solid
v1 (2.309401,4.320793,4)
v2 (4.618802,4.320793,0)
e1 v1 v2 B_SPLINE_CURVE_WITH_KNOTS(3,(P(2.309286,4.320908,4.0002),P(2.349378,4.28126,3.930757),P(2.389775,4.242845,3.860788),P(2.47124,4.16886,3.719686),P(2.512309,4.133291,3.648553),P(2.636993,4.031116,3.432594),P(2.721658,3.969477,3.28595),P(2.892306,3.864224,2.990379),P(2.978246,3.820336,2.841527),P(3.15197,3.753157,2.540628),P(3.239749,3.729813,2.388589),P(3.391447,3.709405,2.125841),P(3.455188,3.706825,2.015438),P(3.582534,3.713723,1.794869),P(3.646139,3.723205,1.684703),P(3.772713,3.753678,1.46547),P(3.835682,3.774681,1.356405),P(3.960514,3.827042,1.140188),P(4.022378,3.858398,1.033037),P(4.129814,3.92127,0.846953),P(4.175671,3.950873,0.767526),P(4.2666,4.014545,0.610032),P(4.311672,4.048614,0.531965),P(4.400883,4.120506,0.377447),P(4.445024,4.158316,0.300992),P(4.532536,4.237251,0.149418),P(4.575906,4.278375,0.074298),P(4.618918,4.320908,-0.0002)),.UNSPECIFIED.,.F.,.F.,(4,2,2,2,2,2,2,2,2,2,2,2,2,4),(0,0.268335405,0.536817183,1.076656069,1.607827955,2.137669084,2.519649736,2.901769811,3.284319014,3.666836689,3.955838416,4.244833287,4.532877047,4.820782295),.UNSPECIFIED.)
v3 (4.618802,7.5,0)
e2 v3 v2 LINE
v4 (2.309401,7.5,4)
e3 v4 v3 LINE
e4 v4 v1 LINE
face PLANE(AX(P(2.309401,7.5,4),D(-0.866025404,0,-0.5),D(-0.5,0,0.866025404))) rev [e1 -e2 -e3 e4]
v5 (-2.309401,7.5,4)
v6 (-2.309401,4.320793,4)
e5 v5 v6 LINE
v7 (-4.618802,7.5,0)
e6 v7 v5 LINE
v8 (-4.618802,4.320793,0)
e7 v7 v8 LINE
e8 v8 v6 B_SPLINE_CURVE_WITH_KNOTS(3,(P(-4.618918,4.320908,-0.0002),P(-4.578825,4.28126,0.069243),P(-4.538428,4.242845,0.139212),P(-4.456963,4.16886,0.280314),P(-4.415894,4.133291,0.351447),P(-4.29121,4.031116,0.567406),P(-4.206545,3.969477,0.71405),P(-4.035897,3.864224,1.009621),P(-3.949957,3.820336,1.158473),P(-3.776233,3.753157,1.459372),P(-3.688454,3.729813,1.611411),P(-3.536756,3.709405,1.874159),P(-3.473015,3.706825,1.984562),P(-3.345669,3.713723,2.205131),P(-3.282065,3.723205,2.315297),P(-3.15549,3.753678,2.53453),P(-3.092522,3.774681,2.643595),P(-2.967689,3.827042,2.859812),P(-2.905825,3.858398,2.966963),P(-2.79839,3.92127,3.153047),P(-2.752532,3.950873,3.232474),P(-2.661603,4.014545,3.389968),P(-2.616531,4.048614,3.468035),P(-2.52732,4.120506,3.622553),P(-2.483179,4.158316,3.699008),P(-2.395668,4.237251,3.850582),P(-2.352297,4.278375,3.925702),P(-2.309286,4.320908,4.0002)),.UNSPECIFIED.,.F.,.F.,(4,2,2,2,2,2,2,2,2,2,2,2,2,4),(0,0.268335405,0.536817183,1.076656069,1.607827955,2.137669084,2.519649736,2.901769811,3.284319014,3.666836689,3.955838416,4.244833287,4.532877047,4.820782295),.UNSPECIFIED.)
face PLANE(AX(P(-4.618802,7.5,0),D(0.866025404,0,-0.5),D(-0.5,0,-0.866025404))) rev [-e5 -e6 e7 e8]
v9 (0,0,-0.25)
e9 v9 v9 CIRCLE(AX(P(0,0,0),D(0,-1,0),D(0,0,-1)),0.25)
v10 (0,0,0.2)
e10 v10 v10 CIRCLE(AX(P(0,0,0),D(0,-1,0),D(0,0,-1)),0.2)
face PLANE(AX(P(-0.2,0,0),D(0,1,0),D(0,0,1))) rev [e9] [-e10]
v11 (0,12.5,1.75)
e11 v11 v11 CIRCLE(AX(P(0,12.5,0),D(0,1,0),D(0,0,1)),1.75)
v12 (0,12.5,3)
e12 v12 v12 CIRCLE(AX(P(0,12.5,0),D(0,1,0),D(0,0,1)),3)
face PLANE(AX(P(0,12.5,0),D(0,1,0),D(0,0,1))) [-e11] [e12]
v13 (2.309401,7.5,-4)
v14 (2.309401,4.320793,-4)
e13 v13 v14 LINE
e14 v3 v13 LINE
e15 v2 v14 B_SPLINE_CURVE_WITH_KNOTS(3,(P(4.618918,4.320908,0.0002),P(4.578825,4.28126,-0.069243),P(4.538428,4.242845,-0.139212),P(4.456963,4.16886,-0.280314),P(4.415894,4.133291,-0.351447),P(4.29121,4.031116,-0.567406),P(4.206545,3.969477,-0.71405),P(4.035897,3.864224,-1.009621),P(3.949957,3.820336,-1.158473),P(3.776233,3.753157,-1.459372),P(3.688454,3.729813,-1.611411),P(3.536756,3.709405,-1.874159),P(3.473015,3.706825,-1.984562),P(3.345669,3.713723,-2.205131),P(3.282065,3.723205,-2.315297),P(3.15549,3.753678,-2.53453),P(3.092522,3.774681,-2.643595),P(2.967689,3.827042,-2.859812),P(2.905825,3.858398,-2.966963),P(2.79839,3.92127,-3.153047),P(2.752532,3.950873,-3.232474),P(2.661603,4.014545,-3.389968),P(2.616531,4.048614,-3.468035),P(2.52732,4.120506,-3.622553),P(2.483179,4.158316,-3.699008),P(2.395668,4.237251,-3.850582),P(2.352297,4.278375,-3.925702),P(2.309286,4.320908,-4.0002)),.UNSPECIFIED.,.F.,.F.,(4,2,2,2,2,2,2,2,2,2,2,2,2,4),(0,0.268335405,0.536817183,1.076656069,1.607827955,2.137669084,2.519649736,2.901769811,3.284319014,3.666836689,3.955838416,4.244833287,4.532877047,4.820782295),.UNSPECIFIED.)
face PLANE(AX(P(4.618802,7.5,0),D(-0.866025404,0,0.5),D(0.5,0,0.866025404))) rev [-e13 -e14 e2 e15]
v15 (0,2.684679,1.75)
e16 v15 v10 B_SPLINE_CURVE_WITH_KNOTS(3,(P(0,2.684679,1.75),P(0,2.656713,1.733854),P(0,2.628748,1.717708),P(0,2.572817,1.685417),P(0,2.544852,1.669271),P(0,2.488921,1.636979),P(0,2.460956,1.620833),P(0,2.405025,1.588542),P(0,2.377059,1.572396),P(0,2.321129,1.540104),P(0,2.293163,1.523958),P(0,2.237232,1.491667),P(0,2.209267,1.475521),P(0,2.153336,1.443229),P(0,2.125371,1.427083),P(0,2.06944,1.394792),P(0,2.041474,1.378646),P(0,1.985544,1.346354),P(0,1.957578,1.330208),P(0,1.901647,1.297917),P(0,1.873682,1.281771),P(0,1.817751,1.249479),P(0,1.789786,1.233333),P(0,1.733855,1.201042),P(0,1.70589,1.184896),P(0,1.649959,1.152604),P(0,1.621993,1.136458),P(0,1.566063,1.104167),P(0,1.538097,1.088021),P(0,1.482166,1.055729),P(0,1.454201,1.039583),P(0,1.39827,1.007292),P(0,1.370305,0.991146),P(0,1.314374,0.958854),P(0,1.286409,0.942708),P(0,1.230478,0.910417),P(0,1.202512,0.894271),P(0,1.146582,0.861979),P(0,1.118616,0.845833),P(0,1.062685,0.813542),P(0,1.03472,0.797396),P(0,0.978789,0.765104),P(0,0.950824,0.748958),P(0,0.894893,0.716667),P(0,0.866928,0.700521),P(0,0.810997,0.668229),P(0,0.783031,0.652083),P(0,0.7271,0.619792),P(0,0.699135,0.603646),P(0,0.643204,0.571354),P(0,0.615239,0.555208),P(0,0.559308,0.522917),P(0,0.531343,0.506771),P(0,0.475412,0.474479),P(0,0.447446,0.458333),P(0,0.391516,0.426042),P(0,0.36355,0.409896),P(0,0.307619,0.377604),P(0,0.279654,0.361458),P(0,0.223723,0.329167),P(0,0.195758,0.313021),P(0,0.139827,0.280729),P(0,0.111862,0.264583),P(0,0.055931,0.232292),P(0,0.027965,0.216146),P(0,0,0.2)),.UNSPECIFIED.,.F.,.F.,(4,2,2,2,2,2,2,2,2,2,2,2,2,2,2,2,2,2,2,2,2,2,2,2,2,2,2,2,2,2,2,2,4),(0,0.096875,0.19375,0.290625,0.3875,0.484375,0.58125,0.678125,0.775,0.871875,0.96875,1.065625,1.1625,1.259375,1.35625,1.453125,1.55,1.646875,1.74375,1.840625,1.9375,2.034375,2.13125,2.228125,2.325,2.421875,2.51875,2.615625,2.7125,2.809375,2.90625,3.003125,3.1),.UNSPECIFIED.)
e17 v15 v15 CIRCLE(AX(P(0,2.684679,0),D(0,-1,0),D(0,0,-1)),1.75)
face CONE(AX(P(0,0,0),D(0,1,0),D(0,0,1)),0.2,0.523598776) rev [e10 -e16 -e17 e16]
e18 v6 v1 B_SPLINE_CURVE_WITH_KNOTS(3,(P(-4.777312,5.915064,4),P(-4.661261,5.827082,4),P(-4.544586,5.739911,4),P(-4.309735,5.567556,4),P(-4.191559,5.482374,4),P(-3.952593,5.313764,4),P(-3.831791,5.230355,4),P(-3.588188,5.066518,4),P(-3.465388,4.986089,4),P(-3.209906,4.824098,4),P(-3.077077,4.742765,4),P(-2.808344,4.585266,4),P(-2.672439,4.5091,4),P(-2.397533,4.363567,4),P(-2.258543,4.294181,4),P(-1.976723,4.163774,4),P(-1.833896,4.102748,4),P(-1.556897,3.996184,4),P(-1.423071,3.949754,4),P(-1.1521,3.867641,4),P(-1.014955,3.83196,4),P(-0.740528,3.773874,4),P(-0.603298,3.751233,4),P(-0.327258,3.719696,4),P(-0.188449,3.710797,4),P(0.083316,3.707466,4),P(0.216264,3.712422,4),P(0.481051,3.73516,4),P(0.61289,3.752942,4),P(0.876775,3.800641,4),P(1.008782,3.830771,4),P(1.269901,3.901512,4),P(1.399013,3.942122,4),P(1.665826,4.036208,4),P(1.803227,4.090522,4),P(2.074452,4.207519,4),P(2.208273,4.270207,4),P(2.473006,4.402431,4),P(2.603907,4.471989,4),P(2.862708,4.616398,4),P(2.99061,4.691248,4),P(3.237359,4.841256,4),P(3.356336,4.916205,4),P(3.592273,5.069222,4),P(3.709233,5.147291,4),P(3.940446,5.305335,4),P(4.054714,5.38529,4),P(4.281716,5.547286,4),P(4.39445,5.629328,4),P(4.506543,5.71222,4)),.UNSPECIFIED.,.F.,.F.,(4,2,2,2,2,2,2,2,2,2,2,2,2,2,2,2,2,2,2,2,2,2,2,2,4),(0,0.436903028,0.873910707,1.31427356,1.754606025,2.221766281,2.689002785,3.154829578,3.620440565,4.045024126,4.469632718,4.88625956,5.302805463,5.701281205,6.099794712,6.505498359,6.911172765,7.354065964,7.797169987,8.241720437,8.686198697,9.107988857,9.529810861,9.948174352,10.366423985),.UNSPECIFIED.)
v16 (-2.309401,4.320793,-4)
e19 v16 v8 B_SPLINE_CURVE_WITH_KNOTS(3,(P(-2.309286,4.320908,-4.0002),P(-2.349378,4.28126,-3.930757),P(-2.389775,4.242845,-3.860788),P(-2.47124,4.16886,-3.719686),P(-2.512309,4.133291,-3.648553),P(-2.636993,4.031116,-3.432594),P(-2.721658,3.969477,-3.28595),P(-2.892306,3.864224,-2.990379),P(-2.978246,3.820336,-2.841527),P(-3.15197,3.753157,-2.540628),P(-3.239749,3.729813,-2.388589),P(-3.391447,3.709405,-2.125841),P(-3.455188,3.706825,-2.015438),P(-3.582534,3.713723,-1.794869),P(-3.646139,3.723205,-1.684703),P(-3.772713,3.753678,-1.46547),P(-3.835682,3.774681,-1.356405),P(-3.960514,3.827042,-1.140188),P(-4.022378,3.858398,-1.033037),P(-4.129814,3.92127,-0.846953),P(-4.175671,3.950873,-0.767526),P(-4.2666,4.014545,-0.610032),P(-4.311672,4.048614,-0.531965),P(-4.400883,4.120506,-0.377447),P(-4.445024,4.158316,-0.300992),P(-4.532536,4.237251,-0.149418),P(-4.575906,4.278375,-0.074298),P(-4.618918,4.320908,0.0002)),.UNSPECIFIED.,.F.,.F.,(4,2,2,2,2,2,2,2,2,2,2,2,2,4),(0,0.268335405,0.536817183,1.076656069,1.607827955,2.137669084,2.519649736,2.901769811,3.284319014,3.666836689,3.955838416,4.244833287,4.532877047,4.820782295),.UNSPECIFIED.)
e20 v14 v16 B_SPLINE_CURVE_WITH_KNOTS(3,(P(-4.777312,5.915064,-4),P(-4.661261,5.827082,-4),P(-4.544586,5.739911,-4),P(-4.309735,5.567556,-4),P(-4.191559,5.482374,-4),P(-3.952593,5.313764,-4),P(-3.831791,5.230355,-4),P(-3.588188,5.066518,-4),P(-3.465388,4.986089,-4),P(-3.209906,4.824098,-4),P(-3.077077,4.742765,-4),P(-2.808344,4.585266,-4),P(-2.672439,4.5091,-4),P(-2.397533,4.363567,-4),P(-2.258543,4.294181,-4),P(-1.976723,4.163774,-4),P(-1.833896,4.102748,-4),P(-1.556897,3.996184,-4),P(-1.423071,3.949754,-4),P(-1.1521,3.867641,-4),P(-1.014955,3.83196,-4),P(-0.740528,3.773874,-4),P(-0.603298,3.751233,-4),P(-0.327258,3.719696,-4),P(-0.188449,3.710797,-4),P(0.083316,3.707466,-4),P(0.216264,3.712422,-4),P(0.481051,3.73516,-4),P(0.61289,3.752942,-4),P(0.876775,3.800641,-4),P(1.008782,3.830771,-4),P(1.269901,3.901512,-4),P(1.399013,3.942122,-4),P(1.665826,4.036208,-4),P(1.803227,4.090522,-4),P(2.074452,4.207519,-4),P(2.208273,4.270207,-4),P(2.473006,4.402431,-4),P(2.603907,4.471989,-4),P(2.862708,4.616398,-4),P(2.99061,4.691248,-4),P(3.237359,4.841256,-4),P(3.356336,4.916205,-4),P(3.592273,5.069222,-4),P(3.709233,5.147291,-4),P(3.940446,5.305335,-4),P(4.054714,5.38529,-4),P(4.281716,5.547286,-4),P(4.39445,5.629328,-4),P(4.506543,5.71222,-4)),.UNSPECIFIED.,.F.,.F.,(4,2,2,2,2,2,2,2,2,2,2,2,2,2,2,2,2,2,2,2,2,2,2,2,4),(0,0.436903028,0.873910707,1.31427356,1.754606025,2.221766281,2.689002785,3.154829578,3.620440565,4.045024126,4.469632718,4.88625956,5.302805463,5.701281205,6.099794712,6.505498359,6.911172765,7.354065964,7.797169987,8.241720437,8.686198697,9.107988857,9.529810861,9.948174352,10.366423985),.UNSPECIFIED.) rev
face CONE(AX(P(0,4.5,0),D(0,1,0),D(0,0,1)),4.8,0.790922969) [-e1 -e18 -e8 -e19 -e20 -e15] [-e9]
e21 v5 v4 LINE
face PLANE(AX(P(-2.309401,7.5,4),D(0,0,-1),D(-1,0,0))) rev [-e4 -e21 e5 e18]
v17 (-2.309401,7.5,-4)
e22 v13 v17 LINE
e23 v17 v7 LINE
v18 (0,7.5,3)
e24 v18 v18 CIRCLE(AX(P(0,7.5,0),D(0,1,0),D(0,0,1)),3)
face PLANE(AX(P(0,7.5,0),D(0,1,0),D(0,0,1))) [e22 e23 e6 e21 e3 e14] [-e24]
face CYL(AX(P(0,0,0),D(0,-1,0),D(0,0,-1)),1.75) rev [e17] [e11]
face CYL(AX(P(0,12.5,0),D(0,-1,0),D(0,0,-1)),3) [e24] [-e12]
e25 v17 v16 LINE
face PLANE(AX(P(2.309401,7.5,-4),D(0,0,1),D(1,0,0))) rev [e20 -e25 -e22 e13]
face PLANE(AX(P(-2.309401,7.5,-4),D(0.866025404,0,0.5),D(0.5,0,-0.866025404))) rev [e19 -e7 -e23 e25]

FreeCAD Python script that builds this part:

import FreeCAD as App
import Part
import Sketcher
from FreeCAD import Vector
Q = App.Units.Quantity

doc = App.newDocument("Part")
params = doc.addObject("Spreadsheet::Sheet", "Params")
for row, (alias, value) in enumerate([
    ("sketch1_length", "3.1 mm"),
    ("sketch1_width", "0.05 mm"),
    ("sketch1_width2", "3.05 mm"),
    ("revolution_angle", "360 deg"),
    ("pad1_length", "3 mm"),
    ("pocket1_length", "10 mm"),
    ("sketch4_diameter", "3.5 mm"),
    ("sketch5_diameter", "6 mm"),
    ("sketch5_diameter2", "3.5 mm"),
    ("pad2_length", "5 mm"),
], start=1):
    params.set(f"A{row}", alias)
    params.set(f"B{row}", "=" + value)
    params.setAlias(f"B{row}", alias)

body = doc.addObject("PartDesign::Body", "Body")

# Sketch on XY plane
sketch1 = body.newObject("Sketcher::SketchObject", "Sketch")
sketch1.AttachmentSupport = (doc.getObject("XY_Plane"), [""])
sketch1.MapMode = "FlatFace"
sketch1.addGeometry(Part.LineSegment(Vector(-0.25, 0, 0), Vector(-0.2, 0, 0)), False)
sketch1.addGeometry(Part.LineSegment(Vector(-0.2, 0, 0), Vector(-1.75, 2.684679, 0)), False)
sketch1.addGeometry(Part.LineSegment(Vector(-1.75, 2.684679, 0), Vector(-1.75, 4.5, 0)), False)
sketch1.addGeometry(Part.LineSegment(Vector(-1.75, 4.5, 0), Vector(-4.8, 4.5, 0)), False)
sketch1.addGeometry(Part.LineSegment(Vector(-4.8, 4.5, 0), Vector(-0.25, 0, 0)), False)
sketch1.addConstraint(Sketcher.Constraint("Coincident", 0, 2, 1, 1))
sketch1.addConstraint(Sketcher.Constraint("Coincident", 1, 2, 2, 1))
sketch1.addConstraint(Sketcher.Constraint("Coincident", 2, 2, 3, 1))
sketch1.addConstraint(Sketcher.Constraint("Coincident", 3, 2, 4, 1))
sketch1.addConstraint(Sketcher.Constraint("Coincident", 4, 2, 0, 1))
sketch1.addConstraint(Sketcher.Constraint("Horizontal", 0))
sketch1.addConstraint(Sketcher.Constraint("Vertical", 2))
sketch1.addConstraint(Sketcher.Constraint("Horizontal", 3))
sketch1.addConstraint(Sketcher.Constraint("PointOnObject", 0, 2, -1))
sketch1.addConstraint(Sketcher.Constraint("Angle", 1, Q("120 deg")))
sketch1.addConstraint(Sketcher.Constraint("Distance", 1, 3.1))
sketch1.addConstraint(Sketcher.Constraint("DistanceX", 0, 1, 0, 2, 0.05))
sketch1.addConstraint(Sketcher.Constraint("DistanceX", 3, 2, 3, 1, 3.05))
sketch1.addConstraint(Sketcher.Constraint("DistanceX", 0, 2, -1, 1, 0.2))
sketch1.addConstraint(Sketcher.Constraint("DistanceY", -1, 1, 2, 2, 4.5))
sketch1.setExpression("Constraints[10]", "Params.sketch1_length")
sketch1.setExpression("Constraints[11]", "Params.sketch1_width")
sketch1.setExpression("Constraints[12]", "Params.sketch1_width2")
revolution = body.newObject("PartDesign::Revolution", "Revolution")
revolution.Profile = sketch1
revolution.ReferenceAxis = (sketch1, ["V_Axis"])
revolution.setExpression("Angle", "Params.revolution_angle")

# Sketch on XZ plane
sketch2 = body.newObject("Sketcher::SketchObject", "Sketch001")
sketch2.AttachmentSupport = (doc.getObject("XZ_Plane"), [""])
sketch2.MapMode = "FlatFace"
sketch2.AttachmentOffset = App.Placement(Vector(0, 0, -4.5), App.Rotation())
sketch2.addGeometry(Part.LineSegment(Vector(2.309401, 4, 0), Vector(4.618802, 0, 0)), False)
sketch2.addGeometry(Part.LineSegment(Vector(4.618802, 0, 0), Vector(2.309401, -4, 0)), False)
sketch2.addGeometry(Part.LineSegment(Vector(2.309401, -4, 0), Vector(-2.309401, -4, 0)), False)
sketch2.addGeometry(Part.LineSegment(Vector(-2.309401, -4, 0), Vector(-4.618802, 0, 0)), False)
sketch2.addGeometry(Part.LineSegment(Vector(-4.618802, 0, 0), Vector(-2.309401, 4, 0)), False)
sketch2.addGeometry(Part.LineSegment(Vector(-2.309401, 4, 0), Vector(2.309401, 4, 0)), False)
sketch2.addConstraint(Sketcher.Constraint("Coincident", 0, 2, 1, 1))
sketch2.addConstraint(Sketcher.Constraint("Coincident", 1, 2, 2, 1))
sketch2.addConstraint(Sketcher.Constraint("Coincident", 2, 2, 3, 1))
sketch2.addConstraint(Sketcher.Constraint("Coincident", 3, 2, 4, 1))
sketch2.addConstraint(Sketcher.Constraint("Coincident", 4, 2, 5, 1))
sketch2.addConstraint(Sketcher.Constraint("Coincident", 5, 2, 0, 1))
sketch2.addConstraint(Sketcher.Constraint("Horizontal", 2))
sketch2.addConstraint(Sketcher.Constraint("Horizontal", 5))
sketch2.addConstraint(Sketcher.Constraint("Symmetric", 0, 2, 3, 2, -1, 1))
sketch2.addConstraint(Sketcher.Constraint("Symmetric", 1, 2, 4, 2, -1, 1))
sketch2.addConstraint(Sketcher.Constraint("PointOnObject", 0, 2, -1))
sketch2.addConstraint(Sketcher.Constraint("Parallel", 0, 3))
sketch2.addConstraint(Sketcher.Constraint("Vertical", 2, 2, 4, 2))
sketch2.addConstraint(Sketcher.Constraint("Angle", 0, Q("-60 deg")))
sketch2.addConstraint(Sketcher.Constraint("DistanceY", 1, 2, -1, 1, 4.0))
sketch2.addConstraint(Sketcher.Constraint("DistanceX", -1, 1, 1, 2, 2.309401))
pad1 = body.newObject("PartDesign::Pad", "Pad")
pad1.Profile = sketch2
pad1.setExpression("Length", "Params.pad1_length")
pad1.Reversed = True

# Sketch on XZ plane
sketch3 = body.newObject("Sketcher::SketchObject", "Sketch002")
sketch3.AttachmentSupport = (doc.getObject("XZ_Plane"), [""])
sketch3.MapMode = "FlatFace"
sketch3.AttachmentOffset = App.Placement(Vector(0, 0, -7.5), App.Rotation())
sketch3.addGeometry(Part.Circle(Vector(0, 0, 0), Vector(0, 0, 1), 5.461737), False)
sketch3.addGeometry(Part.LineSegment(Vector(2.309401, 4, 0), Vector(-2.309401, 4, 0)), False)
sketch3.addGeometry(Part.LineSegment(Vector(-2.309401, 4, 0), Vector(-4.618802, 0, 0)), False)
sketch3.addGeometry(Part.LineSegment(Vector(-4.618802, 0, 0), Vector(-2.309401, -4, 0)), False)
sketch3.addGeometry(Part.LineSegment(Vector(-2.309401, -4, 0), Vector(2.309401, -4, 0)), False)
sketch3.addGeometry(Part.LineSegment(Vector(2.309401, -4, 0), Vector(4.618802, 0, 0)), False)
sketch3.addGeometry(Part.LineSegment(Vector(4.618802, 0, 0), Vector(2.309401, 4, 0)), False)
sketch3.addConstraint(Sketcher.Constraint("Coincident", 1, 2, 2, 1))
sketch3.addConstraint(Sketcher.Constraint("Coincident", 2, 2, 3, 1))
sketch3.addConstraint(Sketcher.Constraint("Coincident", 3, 2, 4, 1))
sketch3.addConstraint(Sketcher.Constraint("Coincident", 4, 2, 5, 1))
sketch3.addConstraint(Sketcher.Constraint("Coincident", 5, 2, 6, 1))
sketch3.addConstraint(Sketcher.Constraint("Coincident", 6, 2, 1, 1))
sketch3.addConstraint(Sketcher.Constraint("Horizontal", 1))
sketch3.addConstraint(Sketcher.Constraint("Horizontal", 4))
sketch3.addConstraint(Sketcher.Constraint("Coincident", 0, 3, -1, 1))
sketch3.addConstraint(Sketcher.Constraint("Symmetric", 1, 2, 4, 2, -1, 1))
sketch3.addConstraint(Sketcher.Constraint("Symmetric", 2, 2, 5, 2, -1, 1))
sketch3.addConstraint(Sketcher.Constraint("PointOnObject", 2, 2, -1))
sketch3.addConstraint(Sketcher.Constraint("Parallel", 3, 6))
sketch3.addConstraint(Sketcher.Constraint("Vertical", 1, 2, 3, 2))
sketch3.addConstraint(Sketcher.Constraint("Angle", 2, Q("-120 deg")))
sketch3.addConstraint(Sketcher.Constraint("DistanceY", -1, 1, 1, 2, 4.0))
sketch3.addConstraint(Sketcher.Constraint("Diameter", 0, 10.923474))
sketch3.addConstraint(Sketcher.Constraint("DistanceX", 1, 2, -1, 1, 2.309401))
pocket1 = body.newObject("PartDesign::Pocket", "Pocket")
pocket1.Profile = sketch3
pocket1.setExpression("Length", "Params.pocket1_length")
pocket1.Reversed = True

# Sketch on XZ plane
sketch4 = body.newObject("Sketcher::SketchObject", "Sketch003")
sketch4.AttachmentSupport = (doc.getObject("XZ_Plane"), [""])
sketch4.MapMode = "FlatFace"
sketch4.AttachmentOffset = App.Placement(Vector(0, 0, -7.5), App.Rotation())
sketch4.addGeometry(Part.Circle(Vector(0, 0, 0), Vector(0, 0, 1), 1.75), False)
sketch4.addConstraint(Sketcher.Constraint("Coincident", 0, 3, -1, 1))
sketch4.addConstraint(Sketcher.Constraint("Diameter", 0, 3.5))
sketch4.setExpression("Constraints[1]", "Params.sketch4_diameter")
pocket2 = body.newObject("PartDesign::Pocket", "Pocket001")
pocket2.Profile = sketch4
pocket2.Type = "UpToFirst"
pocket2.Reversed = True

# Sketch on XZ plane
sketch5 = body.newObject("Sketcher::SketchObject", "Sketch004")
sketch5.AttachmentSupport = (doc.getObject("XZ_Plane"), [""])
sketch5.MapMode = "FlatFace"
sketch5.AttachmentOffset = App.Placement(Vector(0, 0, -7.5), App.Rotation())
sketch5.addGeometry(Part.Circle(Vector(0, 0, 0), Vector(0, 0, 1), 3), False)
sketch5.addGeometry(Part.Circle(Vector(0, 0, 0), Vector(0, 0, 1), 1.75), False)
sketch5.addConstraint(Sketcher.Constraint("Coincident", 0, 3, -1, 1))
sketch5.addConstraint(Sketcher.Constraint("Coincident", 1, 3, -1, 1))
sketch5.addConstraint(Sketcher.Constraint("Diameter", 0, 6.0))
sketch5.addConstraint(Sketcher.Constraint("Diameter", 1, 3.5))
sketch5.setExpression("Constraints[2]", "Params.sketch5_diameter")
sketch5.setExpression("Constraints[3]", "Params.sketch5_diameter2")
pad2 = body.newObject("PartDesign::Pad", "Pad001")
pad2.Profile = sketch5
pad2.setExpression("Length", "Params.pad2_length")
pad2.Reversed = True

doc.recompute()
